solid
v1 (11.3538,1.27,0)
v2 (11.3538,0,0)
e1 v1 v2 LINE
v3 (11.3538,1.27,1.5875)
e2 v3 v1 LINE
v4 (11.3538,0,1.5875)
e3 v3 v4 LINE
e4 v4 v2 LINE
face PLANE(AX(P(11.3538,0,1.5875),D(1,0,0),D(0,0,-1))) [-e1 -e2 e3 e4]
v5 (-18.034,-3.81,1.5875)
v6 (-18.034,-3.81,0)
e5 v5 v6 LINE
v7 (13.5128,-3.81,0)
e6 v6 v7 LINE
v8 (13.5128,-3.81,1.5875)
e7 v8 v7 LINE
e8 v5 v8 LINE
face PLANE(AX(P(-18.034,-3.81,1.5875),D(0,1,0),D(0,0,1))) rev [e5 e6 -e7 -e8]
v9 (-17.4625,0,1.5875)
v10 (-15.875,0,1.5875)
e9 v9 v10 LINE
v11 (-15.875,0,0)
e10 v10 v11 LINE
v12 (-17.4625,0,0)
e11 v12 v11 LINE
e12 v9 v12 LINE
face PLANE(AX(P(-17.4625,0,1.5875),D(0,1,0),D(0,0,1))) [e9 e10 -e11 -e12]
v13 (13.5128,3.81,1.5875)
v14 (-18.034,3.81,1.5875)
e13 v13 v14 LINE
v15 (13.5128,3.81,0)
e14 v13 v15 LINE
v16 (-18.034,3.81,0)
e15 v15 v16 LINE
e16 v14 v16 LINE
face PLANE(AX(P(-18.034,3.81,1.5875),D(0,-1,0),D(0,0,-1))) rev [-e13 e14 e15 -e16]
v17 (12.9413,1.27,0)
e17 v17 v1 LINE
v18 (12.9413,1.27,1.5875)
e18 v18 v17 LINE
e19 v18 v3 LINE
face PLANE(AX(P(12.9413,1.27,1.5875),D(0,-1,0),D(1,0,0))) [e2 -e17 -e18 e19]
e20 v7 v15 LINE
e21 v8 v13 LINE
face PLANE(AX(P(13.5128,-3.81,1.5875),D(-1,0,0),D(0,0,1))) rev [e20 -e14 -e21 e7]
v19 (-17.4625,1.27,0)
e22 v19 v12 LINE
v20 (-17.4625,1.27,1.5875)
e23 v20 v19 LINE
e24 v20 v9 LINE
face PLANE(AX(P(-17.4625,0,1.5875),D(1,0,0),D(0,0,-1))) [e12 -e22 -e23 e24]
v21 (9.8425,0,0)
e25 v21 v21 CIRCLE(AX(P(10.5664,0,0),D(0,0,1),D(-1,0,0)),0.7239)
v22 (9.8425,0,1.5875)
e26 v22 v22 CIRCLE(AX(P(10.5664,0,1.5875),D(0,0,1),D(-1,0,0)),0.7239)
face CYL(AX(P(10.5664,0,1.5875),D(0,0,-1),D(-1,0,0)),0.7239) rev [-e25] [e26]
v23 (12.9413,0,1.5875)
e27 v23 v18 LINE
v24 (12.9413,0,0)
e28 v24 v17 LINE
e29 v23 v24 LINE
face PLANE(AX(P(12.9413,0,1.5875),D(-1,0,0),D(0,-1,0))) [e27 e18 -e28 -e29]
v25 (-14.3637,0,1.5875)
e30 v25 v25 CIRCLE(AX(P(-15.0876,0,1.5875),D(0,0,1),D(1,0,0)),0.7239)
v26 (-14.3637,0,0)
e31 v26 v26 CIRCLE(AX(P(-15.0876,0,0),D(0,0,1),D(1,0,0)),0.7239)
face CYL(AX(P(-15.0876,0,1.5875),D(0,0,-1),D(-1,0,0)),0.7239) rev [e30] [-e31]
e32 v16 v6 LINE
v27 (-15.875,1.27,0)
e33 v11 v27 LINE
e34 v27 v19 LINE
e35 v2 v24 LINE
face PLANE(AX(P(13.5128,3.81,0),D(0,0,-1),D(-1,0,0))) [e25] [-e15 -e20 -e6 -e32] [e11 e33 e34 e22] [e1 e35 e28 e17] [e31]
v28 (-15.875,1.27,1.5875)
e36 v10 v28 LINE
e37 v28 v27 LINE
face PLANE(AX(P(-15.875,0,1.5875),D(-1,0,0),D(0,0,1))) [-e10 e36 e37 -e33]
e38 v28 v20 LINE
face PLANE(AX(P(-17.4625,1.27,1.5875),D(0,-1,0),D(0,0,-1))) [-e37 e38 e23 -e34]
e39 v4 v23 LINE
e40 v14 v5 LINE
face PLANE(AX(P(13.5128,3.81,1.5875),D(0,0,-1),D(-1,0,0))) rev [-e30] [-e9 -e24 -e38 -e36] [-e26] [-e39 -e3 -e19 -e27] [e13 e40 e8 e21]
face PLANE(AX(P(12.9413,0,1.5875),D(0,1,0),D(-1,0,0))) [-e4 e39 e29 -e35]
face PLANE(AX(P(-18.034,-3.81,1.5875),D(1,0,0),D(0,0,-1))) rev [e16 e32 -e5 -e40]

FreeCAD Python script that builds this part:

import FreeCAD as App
import Part
import Sketcher

V = App.Vector
Q = App.Units.Quantity


def add_polygon(sketch, points):
    """Adds a closed chain of lines whose ends are joined by coincident constraints."""
    first, n = sketch.GeometryCount, len(points)
    for a, b in zip(points, points[1:] + points[:1]):
        sketch.addGeometry(Part.LineSegment(App.Vector(*a, 0), App.Vector(*b, 0)), False)
    for i in range(n):
        sketch.addConstraint(Sketcher.Constraint("Coincident", first + i, 2, first + (i + 1) % n, 1))

doc = App.newDocument("Part")
body = doc.addObject("PartDesign::Body", "Body")

# Sketch on XY plane
sketch1 = body.newObject("Sketcher::SketchObject", "Sketch")
sketch1.AttachmentSupport = (doc.getObject("XY_Plane"), [""])
sketch1.MapMode = "FlatFace"
add_polygon(sketch1, [(-18, 3.8), (-18, -3.8), (13.5, -3.8), (13.5, 3.8)])  # lines 0-3
sketch1.addGeometry(Part.Circle(V(-15.1, 0, 0), V(0, 0, 1), 0.7), False)  # 4
sketch1.addGeometry(Part.Circle(V(10.6, 0, 0), V(0, 0, 1), 0.7), False)  # 5
add_polygon(sketch1, [(-15.9, 0), (-17.5, 0), (-17.5, 1.3), (-15.9, 1.3)])  # lines 6-9
add_polygon(sketch1, [(12.9, 0), (11.4, 0), (11.4, 1.3), (12.9, 1.3)])  # lines 10-13
sketch1.addConstraint(Sketcher.Constraint("Vertical", 0))
sketch1.addConstraint(Sketcher.Constraint("Horizontal", 1))
sketch1.addConstraint(Sketcher.Constraint("Vertical", 2))
sketch1.addConstraint(Sketcher.Constraint("Horizontal", 3))
sketch1.addConstraint(Sketcher.Constraint("Horizontal", 6))
sketch1.addConstraint(Sketcher.Constraint("Vertical", 7))
sketch1.addConstraint(Sketcher.Constraint("Horizontal", 8))
sketch1.addConstraint(Sketcher.Constraint("Vertical", 9))
sketch1.addConstraint(Sketcher.Constraint("Horizontal", 10))
sketch1.addConstraint(Sketcher.Constraint("Vertical", 11))
sketch1.addConstraint(Sketcher.Constraint("Horizontal", 12))
sketch1.addConstraint(Sketcher.Constraint("Vertical", 13))
sketch1.addConstraint(Sketcher.Constraint("Equal", 4, 5))
sketch1.addConstraint(Sketcher.Constraint("PointOnObject", 4, 3, -1))
sketch1.addConstraint(Sketcher.Constraint("PointOnObject", 5, 3, -1))
sketch1.addConstraint(Sketcher.Constraint("PointOnObject", 6, 2, -1))
sketch1.addConstraint(Sketcher.Constraint("PointOnObject", 10, 2, -1))
sketch1.addConstraint(Sketcher.Constraint("Horizontal", 8, 2, 11, 2))
sketch1.addConstraint(Sketcher.Constraint("Equal", 8, 10))
sketch1.addConstraint(Sketcher.Constraint("Diameter", 4, Q("0.057 in")))
sketch1.addConstraint(Sketcher.Constraint("DistanceY", 0, 2, 0, 1, Q("0.3 in")))
sketch1.addConstraint(Sketcher.Constraint("DistanceY", 7, 1, 7, 2, Q("0.05 in")))
sketch1.addConstraint(Sketcher.Constraint("DistanceY", 7, 2, 3, 2, Q("0.1 in")))
sketch1.addConstraint(Sketcher.Constraint("DistanceX", 1, 1, 1, 2, Q("1.242 in")))
sketch1.addConstraint(Sketcher.Constraint("DistanceX", 6, 2, 6, 1, Q("0.0625 in")))
sketch1.addConstraint(Sketcher.Constraint("DistanceX", 0, 2, -1, 1, Q("0.71 in")))
sketch1.addConstraint(Sketcher.Constraint("DistanceX", 4, 3, 5, 3, Q("1.01 in")))
sketch1.addConstraint(Sketcher.Constraint("DistanceX", 4, 3, -1, 1, Q("0.594 in")))
sketch1.addConstraint(Sketcher.Constraint("DistanceX", 6, 2, -1, 1, Q("0.6875 in")))
sketch1.addConstraint(Sketcher.Constraint("DistanceX", -1, 1, 10, 2, Q("0.447 in")))
pad1 = body.newObject("PartDesign::Pad", "Pad")
pad1.Profile = sketch1
pad1.Length = Q("0.0625 in")

doc.recompute()
